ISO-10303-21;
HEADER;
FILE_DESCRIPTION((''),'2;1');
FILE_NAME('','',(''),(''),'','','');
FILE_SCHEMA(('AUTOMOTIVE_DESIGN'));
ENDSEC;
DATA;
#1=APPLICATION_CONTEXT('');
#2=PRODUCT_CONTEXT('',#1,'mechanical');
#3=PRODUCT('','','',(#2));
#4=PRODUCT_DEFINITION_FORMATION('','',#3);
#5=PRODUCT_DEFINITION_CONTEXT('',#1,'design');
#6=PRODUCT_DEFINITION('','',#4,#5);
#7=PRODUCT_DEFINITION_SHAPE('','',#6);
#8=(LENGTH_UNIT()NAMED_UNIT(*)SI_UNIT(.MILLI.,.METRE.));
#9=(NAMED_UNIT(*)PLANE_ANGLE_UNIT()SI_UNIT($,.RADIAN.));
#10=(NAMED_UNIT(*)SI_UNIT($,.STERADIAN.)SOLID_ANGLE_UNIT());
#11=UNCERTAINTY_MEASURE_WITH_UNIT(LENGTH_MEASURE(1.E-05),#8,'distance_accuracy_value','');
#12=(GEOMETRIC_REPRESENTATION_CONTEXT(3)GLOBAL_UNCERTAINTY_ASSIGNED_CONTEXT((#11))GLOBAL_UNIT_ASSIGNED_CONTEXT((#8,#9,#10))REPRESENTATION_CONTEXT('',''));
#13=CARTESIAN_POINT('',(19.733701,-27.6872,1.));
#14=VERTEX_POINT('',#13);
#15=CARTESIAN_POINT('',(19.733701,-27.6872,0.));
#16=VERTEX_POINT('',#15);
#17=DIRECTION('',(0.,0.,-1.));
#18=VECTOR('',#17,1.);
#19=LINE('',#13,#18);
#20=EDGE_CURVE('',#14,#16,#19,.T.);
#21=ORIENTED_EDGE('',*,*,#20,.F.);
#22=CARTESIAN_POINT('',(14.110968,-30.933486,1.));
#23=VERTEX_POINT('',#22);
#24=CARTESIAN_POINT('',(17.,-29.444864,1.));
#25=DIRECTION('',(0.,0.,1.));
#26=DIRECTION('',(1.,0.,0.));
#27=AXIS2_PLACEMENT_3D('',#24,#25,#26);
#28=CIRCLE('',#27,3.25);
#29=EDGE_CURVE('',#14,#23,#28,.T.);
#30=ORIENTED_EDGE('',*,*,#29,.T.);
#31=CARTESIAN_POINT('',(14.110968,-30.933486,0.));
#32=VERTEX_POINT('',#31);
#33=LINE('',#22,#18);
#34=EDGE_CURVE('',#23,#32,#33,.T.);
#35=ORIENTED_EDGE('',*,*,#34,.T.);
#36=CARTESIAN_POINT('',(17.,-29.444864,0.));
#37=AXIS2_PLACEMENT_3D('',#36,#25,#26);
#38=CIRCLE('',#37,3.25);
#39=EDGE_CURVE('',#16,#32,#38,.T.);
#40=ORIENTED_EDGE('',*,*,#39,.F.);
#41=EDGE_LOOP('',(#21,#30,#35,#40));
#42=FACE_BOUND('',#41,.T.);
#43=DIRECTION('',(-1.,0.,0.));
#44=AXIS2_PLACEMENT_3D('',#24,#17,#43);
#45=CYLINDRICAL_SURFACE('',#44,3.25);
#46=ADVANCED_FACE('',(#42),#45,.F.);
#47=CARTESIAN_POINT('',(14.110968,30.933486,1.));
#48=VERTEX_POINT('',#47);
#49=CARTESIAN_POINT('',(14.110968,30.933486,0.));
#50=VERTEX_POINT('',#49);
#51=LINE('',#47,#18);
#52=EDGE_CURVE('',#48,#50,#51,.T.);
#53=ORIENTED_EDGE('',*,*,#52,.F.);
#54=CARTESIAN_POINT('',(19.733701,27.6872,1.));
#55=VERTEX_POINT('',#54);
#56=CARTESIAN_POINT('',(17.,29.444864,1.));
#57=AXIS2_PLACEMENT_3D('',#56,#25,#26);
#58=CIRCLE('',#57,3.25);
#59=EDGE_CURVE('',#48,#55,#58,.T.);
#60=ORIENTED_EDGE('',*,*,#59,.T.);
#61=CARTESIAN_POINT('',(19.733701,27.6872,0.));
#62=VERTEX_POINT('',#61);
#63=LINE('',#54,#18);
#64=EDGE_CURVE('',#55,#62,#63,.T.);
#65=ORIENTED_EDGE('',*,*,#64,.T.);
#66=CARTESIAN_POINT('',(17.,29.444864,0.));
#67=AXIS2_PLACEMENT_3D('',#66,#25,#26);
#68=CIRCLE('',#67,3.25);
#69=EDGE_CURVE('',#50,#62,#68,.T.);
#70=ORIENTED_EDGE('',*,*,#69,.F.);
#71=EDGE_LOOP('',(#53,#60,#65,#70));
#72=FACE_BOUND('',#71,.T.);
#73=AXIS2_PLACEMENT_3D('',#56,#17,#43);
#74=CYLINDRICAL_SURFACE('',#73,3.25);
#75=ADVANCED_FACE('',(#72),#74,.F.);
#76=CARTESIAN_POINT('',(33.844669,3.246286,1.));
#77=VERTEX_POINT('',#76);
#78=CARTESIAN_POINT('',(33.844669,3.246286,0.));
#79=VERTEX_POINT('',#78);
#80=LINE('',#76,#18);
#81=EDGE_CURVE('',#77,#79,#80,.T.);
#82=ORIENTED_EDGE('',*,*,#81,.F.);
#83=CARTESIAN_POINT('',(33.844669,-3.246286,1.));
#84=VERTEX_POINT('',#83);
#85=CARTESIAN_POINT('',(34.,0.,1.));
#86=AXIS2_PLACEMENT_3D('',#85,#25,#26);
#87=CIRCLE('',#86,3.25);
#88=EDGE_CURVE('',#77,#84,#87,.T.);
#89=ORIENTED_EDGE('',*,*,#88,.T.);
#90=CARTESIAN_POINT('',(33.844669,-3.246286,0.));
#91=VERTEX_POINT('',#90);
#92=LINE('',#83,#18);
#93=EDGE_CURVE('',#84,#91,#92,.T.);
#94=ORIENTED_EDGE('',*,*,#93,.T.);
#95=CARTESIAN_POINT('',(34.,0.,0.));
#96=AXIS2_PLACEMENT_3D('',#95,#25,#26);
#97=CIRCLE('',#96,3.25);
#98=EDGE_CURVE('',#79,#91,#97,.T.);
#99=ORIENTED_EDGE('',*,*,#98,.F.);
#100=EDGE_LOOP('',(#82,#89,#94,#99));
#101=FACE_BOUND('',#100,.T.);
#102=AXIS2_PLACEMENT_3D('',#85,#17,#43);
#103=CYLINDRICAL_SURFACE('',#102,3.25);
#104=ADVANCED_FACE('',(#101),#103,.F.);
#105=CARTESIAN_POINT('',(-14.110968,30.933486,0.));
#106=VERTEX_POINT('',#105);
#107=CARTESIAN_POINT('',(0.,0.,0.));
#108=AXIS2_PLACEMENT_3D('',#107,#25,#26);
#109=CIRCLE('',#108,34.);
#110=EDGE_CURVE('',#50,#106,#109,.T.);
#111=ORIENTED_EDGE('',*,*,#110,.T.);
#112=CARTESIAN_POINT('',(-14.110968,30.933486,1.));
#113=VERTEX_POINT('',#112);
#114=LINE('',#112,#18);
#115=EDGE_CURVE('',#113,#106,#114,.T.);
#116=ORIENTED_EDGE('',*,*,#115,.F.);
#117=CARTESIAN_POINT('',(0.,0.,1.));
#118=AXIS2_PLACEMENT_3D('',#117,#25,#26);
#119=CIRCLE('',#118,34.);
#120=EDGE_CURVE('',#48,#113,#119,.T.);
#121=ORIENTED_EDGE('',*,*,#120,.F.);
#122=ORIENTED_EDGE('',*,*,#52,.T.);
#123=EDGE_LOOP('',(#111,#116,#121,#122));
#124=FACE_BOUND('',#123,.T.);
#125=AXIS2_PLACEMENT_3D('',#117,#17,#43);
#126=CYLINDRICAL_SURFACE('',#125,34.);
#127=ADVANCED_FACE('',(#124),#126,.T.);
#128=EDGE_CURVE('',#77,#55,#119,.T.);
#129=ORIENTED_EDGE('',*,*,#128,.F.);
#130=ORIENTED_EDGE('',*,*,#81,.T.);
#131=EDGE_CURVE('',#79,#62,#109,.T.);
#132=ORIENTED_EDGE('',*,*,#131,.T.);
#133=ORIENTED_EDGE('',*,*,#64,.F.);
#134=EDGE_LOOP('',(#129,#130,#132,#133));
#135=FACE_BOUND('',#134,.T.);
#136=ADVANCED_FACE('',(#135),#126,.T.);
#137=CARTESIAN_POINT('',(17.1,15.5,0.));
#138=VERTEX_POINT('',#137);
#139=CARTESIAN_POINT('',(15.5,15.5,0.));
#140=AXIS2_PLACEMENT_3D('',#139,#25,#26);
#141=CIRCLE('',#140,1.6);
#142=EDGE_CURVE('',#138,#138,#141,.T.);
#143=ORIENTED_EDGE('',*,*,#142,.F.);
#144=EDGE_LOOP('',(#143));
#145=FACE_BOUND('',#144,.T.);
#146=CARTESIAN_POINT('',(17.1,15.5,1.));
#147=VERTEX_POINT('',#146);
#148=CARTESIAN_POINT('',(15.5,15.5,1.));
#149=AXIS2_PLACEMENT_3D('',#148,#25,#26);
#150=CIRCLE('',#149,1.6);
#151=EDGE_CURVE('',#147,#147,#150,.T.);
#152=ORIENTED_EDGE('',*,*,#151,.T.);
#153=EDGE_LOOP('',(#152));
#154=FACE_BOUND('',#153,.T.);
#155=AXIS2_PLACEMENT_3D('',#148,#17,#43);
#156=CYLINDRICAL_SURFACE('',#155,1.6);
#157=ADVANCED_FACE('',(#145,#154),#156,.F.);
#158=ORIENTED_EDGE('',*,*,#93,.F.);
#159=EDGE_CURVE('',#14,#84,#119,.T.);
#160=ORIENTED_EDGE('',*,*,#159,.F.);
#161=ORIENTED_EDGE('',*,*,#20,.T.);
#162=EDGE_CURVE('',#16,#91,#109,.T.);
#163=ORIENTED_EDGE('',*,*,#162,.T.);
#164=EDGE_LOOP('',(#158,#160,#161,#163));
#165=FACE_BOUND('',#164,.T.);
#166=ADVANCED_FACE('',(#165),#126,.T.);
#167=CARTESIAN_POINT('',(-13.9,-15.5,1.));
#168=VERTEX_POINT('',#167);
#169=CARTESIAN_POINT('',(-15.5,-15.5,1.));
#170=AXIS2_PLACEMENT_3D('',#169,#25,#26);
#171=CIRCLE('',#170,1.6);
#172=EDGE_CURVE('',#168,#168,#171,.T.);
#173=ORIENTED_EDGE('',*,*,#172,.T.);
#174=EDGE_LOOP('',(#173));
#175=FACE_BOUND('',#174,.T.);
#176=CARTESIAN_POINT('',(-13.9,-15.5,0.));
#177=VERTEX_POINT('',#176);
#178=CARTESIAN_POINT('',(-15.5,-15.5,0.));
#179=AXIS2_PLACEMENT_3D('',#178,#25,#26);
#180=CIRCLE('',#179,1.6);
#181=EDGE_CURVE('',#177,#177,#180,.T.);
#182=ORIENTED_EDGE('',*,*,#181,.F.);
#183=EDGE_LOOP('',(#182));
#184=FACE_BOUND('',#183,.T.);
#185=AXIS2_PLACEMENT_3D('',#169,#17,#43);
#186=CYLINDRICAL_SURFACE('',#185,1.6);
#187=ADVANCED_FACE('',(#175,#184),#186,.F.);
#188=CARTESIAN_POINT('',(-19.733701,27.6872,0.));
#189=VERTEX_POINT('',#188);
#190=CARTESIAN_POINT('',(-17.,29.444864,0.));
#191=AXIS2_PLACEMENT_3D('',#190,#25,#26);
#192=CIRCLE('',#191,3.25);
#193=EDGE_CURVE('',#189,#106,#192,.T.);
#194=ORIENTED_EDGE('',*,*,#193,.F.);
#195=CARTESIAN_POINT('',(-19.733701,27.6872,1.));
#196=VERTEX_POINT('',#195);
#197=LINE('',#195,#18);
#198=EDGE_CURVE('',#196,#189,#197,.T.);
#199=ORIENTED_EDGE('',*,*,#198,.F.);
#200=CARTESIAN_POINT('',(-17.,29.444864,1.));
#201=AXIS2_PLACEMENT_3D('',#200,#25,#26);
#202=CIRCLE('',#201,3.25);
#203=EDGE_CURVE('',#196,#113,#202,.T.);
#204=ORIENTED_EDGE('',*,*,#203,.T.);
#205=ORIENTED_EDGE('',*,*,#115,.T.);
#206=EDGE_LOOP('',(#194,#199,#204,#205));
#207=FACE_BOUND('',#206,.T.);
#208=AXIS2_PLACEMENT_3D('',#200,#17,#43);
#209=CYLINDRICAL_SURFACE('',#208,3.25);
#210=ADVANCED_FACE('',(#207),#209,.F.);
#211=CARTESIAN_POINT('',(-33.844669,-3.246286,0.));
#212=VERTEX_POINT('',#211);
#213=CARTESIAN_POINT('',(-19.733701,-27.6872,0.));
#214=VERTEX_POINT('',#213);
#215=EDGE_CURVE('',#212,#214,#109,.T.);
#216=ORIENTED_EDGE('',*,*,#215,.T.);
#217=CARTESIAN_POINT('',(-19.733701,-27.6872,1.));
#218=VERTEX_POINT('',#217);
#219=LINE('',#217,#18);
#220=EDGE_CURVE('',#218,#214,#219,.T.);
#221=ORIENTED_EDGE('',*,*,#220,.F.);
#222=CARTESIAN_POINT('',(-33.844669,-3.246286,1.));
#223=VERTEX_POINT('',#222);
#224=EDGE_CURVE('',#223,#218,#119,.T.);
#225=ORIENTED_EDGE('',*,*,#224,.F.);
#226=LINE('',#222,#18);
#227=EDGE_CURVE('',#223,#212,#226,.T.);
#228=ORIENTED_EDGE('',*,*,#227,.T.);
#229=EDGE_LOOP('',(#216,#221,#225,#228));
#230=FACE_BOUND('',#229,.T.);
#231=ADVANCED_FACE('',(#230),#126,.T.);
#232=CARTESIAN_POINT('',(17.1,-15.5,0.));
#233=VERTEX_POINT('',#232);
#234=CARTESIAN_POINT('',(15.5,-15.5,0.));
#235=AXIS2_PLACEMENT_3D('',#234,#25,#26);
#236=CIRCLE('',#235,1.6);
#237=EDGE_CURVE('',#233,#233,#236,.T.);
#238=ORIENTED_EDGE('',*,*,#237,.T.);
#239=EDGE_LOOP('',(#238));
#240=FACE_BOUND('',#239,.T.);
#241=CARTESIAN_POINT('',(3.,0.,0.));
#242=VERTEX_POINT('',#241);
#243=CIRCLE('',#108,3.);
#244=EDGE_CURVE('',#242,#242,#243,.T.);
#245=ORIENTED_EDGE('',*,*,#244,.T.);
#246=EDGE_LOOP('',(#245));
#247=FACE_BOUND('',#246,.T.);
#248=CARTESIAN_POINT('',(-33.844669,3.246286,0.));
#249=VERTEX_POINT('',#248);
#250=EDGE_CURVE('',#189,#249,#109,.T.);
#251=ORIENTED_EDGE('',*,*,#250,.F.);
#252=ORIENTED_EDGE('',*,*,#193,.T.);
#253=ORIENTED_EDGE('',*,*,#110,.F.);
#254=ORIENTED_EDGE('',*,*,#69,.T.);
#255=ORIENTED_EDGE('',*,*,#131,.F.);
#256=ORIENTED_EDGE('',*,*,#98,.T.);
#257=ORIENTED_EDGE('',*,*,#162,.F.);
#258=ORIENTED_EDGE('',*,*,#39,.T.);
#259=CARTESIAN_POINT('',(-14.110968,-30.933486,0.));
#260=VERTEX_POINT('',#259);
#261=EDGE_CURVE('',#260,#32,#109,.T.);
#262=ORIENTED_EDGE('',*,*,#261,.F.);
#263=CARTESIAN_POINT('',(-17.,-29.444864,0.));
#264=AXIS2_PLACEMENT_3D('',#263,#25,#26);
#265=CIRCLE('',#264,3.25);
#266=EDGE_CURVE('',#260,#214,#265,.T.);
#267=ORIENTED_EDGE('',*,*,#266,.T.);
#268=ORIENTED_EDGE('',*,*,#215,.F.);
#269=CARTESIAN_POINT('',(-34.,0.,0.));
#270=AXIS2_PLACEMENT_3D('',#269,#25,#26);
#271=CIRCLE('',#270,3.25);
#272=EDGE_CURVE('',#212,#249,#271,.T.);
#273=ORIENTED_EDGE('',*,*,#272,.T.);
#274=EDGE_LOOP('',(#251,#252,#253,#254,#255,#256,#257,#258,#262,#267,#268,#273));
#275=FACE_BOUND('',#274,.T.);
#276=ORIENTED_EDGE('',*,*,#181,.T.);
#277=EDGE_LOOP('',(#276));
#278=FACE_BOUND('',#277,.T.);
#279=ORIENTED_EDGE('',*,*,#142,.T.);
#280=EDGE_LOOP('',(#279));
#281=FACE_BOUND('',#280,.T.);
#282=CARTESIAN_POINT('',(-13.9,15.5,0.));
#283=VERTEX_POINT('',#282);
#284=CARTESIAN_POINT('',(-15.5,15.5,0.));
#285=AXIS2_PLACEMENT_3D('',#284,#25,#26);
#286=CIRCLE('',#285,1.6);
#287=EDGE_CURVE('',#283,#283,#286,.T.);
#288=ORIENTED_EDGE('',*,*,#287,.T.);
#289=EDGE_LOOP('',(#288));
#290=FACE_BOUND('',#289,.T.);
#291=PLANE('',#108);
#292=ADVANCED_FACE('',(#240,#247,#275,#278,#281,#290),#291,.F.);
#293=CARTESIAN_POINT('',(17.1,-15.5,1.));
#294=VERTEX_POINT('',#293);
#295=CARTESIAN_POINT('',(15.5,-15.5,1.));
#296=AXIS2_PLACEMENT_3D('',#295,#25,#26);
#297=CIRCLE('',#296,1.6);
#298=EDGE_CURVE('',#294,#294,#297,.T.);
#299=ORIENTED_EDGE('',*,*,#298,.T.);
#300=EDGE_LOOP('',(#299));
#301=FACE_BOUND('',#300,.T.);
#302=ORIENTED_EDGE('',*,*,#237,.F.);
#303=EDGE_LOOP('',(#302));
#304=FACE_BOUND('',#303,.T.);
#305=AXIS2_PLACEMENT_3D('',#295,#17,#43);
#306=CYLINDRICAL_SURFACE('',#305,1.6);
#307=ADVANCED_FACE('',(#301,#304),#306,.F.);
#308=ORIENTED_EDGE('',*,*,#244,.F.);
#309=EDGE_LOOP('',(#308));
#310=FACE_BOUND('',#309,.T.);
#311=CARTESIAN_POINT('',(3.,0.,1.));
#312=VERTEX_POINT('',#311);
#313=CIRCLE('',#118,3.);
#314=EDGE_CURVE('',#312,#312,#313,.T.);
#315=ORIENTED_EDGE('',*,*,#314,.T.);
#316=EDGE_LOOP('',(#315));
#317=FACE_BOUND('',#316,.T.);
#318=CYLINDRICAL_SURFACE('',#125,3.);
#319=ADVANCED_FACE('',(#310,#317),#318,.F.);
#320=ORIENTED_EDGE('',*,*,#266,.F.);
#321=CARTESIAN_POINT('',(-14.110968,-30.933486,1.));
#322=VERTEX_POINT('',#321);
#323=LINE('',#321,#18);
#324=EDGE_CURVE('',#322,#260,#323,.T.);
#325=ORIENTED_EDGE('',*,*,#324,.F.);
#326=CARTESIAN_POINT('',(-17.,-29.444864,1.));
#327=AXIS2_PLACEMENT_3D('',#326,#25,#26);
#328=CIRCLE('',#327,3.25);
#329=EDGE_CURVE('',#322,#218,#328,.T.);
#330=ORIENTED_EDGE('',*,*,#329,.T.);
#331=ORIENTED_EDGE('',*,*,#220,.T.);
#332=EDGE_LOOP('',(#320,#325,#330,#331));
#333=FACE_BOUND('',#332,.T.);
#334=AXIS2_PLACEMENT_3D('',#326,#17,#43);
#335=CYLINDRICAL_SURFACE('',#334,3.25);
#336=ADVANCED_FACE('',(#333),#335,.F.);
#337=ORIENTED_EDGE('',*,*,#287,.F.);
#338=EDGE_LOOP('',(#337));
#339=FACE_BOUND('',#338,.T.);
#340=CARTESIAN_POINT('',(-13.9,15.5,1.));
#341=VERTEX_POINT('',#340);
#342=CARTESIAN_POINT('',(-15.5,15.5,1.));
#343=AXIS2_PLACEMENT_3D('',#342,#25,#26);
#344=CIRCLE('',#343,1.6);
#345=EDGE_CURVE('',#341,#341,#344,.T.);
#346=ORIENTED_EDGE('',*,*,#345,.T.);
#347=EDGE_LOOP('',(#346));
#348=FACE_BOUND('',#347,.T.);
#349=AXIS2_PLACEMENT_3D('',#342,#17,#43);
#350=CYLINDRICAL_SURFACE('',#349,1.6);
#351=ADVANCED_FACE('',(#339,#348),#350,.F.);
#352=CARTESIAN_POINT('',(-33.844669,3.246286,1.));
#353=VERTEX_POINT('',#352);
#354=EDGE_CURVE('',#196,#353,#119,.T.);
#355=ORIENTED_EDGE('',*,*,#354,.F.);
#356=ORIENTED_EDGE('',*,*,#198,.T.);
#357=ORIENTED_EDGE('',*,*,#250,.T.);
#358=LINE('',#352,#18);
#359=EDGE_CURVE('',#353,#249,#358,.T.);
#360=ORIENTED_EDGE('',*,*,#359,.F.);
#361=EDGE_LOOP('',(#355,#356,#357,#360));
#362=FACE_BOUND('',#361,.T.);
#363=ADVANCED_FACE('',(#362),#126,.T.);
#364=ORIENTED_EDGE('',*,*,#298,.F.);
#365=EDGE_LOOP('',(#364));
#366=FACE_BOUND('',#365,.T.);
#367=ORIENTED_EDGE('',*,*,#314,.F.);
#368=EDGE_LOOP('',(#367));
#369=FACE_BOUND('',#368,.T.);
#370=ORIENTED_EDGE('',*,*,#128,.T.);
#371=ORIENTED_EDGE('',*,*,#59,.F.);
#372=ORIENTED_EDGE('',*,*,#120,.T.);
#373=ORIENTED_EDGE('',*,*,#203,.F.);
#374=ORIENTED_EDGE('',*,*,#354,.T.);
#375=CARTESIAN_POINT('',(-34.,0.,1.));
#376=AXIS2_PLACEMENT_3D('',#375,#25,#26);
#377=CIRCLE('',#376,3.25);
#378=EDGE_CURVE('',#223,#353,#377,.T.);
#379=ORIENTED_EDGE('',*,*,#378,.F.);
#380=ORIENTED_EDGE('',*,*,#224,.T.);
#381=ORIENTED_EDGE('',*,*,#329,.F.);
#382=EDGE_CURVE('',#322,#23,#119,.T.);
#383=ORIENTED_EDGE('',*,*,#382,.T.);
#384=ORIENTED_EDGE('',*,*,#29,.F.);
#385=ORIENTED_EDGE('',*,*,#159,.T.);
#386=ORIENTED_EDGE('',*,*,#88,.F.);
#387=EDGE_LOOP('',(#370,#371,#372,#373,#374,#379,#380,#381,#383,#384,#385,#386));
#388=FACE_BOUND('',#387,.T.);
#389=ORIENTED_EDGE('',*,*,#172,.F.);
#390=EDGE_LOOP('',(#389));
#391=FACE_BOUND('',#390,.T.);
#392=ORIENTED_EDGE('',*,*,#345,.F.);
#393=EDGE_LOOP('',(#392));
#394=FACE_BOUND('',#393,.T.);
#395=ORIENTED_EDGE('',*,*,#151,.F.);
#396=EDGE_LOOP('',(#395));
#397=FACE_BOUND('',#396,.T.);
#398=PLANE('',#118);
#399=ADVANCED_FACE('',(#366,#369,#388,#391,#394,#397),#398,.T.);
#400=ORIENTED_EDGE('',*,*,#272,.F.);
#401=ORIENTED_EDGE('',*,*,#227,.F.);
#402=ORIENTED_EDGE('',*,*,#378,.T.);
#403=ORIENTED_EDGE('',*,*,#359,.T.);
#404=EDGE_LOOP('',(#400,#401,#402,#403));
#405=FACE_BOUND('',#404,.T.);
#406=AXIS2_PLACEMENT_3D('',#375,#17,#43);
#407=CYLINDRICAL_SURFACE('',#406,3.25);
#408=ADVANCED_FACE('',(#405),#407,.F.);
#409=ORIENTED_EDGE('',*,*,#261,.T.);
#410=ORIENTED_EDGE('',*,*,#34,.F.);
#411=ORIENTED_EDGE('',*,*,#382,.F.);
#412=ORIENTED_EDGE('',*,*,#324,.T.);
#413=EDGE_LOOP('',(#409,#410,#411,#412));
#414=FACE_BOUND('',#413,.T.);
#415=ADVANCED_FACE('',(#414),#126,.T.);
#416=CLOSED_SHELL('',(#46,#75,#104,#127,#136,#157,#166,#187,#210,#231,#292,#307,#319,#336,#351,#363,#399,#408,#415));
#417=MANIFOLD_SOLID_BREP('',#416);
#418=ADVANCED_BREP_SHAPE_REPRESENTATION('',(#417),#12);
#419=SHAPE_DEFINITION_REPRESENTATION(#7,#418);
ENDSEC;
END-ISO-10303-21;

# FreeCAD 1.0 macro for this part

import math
import FreeCAD as App
import Part
import Sketcher

doc = App.newDocument("Part")
body = doc.addObject("PartDesign::Body", "Body")

# Sketch on XY plane
sketch1 = body.newObject("Sketcher::SketchObject", "Sketch")
sketch1.AttachmentSupport = (doc.getObject("XY_Plane"), [""])
sketch1.MapMode = "FlatFace"
sketch1.addGeometry([
    Part.ArcOfCircle(Part.Circle(App.Vector(34, 0, 0), App.Vector(0, 0, 1), 3.2), math.radians(93), math.radians(267)),  # 0
    Part.ArcOfCircle(Part.Circle(App.Vector(0, 0, 0), App.Vector(0, 0, 1), 34), math.radians(5), math.radians(55)),  # 1
    Part.ArcOfCircle(Part.Circle(App.Vector(17, 29.4, 0), App.Vector(0, 0, 1), 3.2), math.radians(153), math.radians(327)),  # 2
    Part.ArcOfCircle(Part.Circle(App.Vector(0, 0, 0), App.Vector(0, 0, 1), 34), math.radians(65), math.radians(115)),  # 3
    Part.ArcOfCircle(Part.Circle(App.Vector(-17, 29.4, 0), App.Vector(0, 0, 1), 3.3), math.radians(0), math.radians(27)),  # 4
    Part.ArcOfCircle(Part.Circle(App.Vector(-17, 29.4, 0), App.Vector(0, 0, 1), 3.2), math.radians(-147), math.radians(0)),  # 5
    Part.ArcOfCircle(Part.Circle(App.Vector(0, 0, 0), App.Vector(0, 0, 1), 34), math.radians(125), math.radians(175)),  # 6
    Part.ArcOfCircle(Part.Circle(App.Vector(-34, 0, 0), App.Vector(0, 0, 1), 3.2), math.radians(0), math.radians(87)),  # 7
    Part.ArcOfCircle(Part.Circle(App.Vector(-34, 0, 0), App.Vector(0, 0, 1), 3.2), math.radians(-87), math.radians(0)),  # 8
    Part.ArcOfCircle(Part.Circle(App.Vector(0, 0, 0), App.Vector(0, 0, 1), 34), math.radians(-175), math.radians(-125)),  # 9
    Part.ArcOfCircle(Part.Circle(App.Vector(-17, -29.4, 0), App.Vector(0, 0, 1), 3.2), math.radians(0), math.radians(147)),  # 10
    Part.ArcOfCircle(Part.Circle(App.Vector(-17, -29.4, 0), App.Vector(0, 0, 1), 3.3), math.radians(-27), math.radians(0)),  # 11
    Part.ArcOfCircle(Part.Circle(App.Vector(0, 0, 0), App.Vector(0, 0, 1), 34), math.radians(-115), math.radians(-65)),  # 12
    Part.ArcOfCircle(Part.Circle(App.Vector(17, -29.4, 0), App.Vector(0, 0, 1), 3.2), math.radians(33), math.radians(207)),  # 13
    Part.ArcOfCircle(Part.Circle(App.Vector(0, 0, 0), App.Vector(0, 0, 1), 34), math.radians(-55), math.radians(-5)),  # 14
    Part.Circle(App.Vector(-15.5, -15.5, 0), App.Vector(0, 0, 1), 1.6),  # 15
    Part.Circle(App.Vector(15.5, -15.5, 0), App.Vector(0, 0, 1), 1.6),  # 16
    Part.Circle(App.Vector(0, 0, 0), App.Vector(0, 0, 1), 3),  # 17
    Part.Circle(App.Vector(-15.5, 15.5, 0), App.Vector(0, 0, 1), 1.6),  # 18
    Part.Circle(App.Vector(15.5, 15.5, 0), App.Vector(0, 0, 1), 1.6),  # 19
], False)
sketch1.addConstraint([
    Sketcher.Constraint("Coincident", 0, 1, 1, 1),
    Sketcher.Constraint("Coincident", 1, 2, 2, 2),
    Sketcher.Constraint("Coincident", 2, 1, 3, 1),
    Sketcher.Constraint("Coincident", 3, 2, 4, 2),
    Sketcher.Constraint("Tangent", 4, 1, 5, 2),
    Sketcher.Constraint("Coincident", 5, 1, 6, 1),
    Sketcher.Constraint("Coincident", 6, 2, 7, 2),
    Sketcher.Constraint("Tangent", 7, 1, 8, 2),
    Sketcher.Constraint("Coincident", 8, 1, 9, 1),
    Sketcher.Constraint("Coincident", 9, 2, 10, 2),
    Sketcher.Constraint("Tangent", 10, 1, 11, 2),
    Sketcher.Constraint("Coincident", 11, 1, 12, 1),
    Sketcher.Constraint("Coincident", 12, 2, 13, 2),
    Sketcher.Constraint("Coincident", 13, 1, 14, 1),
    Sketcher.Constraint("Coincident", 14, 2, 0, 2),
    Sketcher.Constraint("Coincident", 1, 3, -1, 1),
    Sketcher.Constraint("Coincident", 3, 3, -1, 1),
    Sketcher.Constraint("Coincident", 6, 3, -1, 1),
    Sketcher.Constraint("Coincident", 9, 3, -1, 1),
    Sketcher.Constraint("Coincident", 12, 3, -1, 1),
    Sketcher.Constraint("Coincident", 14, 3, -1, 1),
    Sketcher.Constraint("Coincident", 17, 3, -1, 1),
    Sketcher.Constraint("Equal", 0, 2),
    Sketcher.Constraint("Equal", 1, 3),
    Sketcher.Constraint("Equal", 2, 4),
    Sketcher.Constraint("Equal", 4, 5),
    Sketcher.Constraint("Equal", 3, 6),
    Sketcher.Constraint("Equal", 5, 7),
    Sketcher.Constraint("Equal", 7, 8),
    Sketcher.Constraint("Equal", 6, 9),
    Sketcher.Constraint("Equal", 8, 10),
    Sketcher.Constraint("Equal", 10, 11),
    Sketcher.Constraint("Equal", 9, 12),
    Sketcher.Constraint("Equal", 11, 13),
    Sketcher.Constraint("Equal", 12, 14),
    Sketcher.Constraint("Equal", 15, 16),
    Sketcher.Constraint("Equal", 16, 18),
    Sketcher.Constraint("Equal", 18, 19),
    Sketcher.Constraint("Symmetric", 0, 3, 7, 3, -1, 1),
    Sketcher.Constraint("Symmetric", 2, 3, 10, 3, -1, 1),
    Sketcher.Constraint("Symmetric", 4, 3, 13, 3, -1, 1),
    Sketcher.Constraint("Symmetric", 16, 3, 18, 3, -1, 1),
    Sketcher.Constraint("Symmetric", 15, 3, 19, 3, -1, 1),
    Sketcher.Constraint("Symmetric", 2, 3, 4, 3, -2),
    Sketcher.Constraint("Symmetric", 15, 3, 16, 3, -2),
    Sketcher.Constraint("PointOnObject", 0, 3, -1),
    Sketcher.Constraint("PointOnObject", 7, 1, -1),
    Sketcher.Constraint("Horizontal", 5, 3, 4, 1),
    Sketcher.Constraint("Horizontal", 13, 3, 10, 1),
    Sketcher.Constraint("Diameter", 17, 6.0),
    Sketcher.Constraint("Radius", 1, 34.0),
    Sketcher.Constraint("Diameter", 15, 3.2),
    Sketcher.Constraint("Radius", 0, 3.25),
    Sketcher.Constraint("DistanceX", -1, 1, 0, 3, 34.0),
    Sketcher.Constraint("DistanceX", -1, 1, 2, 3, 17.0),
    Sketcher.Constraint("DistanceX", 15, 3, -1, 1, 15.5),
    Sketcher.Constraint("DistanceY", 15, 3, -1, 1, 15.5),
    Sketcher.Constraint("DistanceX", -1, 1, 1, 2, 19.733701),
])
pad1 = body.newObject("PartDesign::Pad", "Pad")
pad1.Profile = sketch1
pad1.Length = 1

doc.recompute()
